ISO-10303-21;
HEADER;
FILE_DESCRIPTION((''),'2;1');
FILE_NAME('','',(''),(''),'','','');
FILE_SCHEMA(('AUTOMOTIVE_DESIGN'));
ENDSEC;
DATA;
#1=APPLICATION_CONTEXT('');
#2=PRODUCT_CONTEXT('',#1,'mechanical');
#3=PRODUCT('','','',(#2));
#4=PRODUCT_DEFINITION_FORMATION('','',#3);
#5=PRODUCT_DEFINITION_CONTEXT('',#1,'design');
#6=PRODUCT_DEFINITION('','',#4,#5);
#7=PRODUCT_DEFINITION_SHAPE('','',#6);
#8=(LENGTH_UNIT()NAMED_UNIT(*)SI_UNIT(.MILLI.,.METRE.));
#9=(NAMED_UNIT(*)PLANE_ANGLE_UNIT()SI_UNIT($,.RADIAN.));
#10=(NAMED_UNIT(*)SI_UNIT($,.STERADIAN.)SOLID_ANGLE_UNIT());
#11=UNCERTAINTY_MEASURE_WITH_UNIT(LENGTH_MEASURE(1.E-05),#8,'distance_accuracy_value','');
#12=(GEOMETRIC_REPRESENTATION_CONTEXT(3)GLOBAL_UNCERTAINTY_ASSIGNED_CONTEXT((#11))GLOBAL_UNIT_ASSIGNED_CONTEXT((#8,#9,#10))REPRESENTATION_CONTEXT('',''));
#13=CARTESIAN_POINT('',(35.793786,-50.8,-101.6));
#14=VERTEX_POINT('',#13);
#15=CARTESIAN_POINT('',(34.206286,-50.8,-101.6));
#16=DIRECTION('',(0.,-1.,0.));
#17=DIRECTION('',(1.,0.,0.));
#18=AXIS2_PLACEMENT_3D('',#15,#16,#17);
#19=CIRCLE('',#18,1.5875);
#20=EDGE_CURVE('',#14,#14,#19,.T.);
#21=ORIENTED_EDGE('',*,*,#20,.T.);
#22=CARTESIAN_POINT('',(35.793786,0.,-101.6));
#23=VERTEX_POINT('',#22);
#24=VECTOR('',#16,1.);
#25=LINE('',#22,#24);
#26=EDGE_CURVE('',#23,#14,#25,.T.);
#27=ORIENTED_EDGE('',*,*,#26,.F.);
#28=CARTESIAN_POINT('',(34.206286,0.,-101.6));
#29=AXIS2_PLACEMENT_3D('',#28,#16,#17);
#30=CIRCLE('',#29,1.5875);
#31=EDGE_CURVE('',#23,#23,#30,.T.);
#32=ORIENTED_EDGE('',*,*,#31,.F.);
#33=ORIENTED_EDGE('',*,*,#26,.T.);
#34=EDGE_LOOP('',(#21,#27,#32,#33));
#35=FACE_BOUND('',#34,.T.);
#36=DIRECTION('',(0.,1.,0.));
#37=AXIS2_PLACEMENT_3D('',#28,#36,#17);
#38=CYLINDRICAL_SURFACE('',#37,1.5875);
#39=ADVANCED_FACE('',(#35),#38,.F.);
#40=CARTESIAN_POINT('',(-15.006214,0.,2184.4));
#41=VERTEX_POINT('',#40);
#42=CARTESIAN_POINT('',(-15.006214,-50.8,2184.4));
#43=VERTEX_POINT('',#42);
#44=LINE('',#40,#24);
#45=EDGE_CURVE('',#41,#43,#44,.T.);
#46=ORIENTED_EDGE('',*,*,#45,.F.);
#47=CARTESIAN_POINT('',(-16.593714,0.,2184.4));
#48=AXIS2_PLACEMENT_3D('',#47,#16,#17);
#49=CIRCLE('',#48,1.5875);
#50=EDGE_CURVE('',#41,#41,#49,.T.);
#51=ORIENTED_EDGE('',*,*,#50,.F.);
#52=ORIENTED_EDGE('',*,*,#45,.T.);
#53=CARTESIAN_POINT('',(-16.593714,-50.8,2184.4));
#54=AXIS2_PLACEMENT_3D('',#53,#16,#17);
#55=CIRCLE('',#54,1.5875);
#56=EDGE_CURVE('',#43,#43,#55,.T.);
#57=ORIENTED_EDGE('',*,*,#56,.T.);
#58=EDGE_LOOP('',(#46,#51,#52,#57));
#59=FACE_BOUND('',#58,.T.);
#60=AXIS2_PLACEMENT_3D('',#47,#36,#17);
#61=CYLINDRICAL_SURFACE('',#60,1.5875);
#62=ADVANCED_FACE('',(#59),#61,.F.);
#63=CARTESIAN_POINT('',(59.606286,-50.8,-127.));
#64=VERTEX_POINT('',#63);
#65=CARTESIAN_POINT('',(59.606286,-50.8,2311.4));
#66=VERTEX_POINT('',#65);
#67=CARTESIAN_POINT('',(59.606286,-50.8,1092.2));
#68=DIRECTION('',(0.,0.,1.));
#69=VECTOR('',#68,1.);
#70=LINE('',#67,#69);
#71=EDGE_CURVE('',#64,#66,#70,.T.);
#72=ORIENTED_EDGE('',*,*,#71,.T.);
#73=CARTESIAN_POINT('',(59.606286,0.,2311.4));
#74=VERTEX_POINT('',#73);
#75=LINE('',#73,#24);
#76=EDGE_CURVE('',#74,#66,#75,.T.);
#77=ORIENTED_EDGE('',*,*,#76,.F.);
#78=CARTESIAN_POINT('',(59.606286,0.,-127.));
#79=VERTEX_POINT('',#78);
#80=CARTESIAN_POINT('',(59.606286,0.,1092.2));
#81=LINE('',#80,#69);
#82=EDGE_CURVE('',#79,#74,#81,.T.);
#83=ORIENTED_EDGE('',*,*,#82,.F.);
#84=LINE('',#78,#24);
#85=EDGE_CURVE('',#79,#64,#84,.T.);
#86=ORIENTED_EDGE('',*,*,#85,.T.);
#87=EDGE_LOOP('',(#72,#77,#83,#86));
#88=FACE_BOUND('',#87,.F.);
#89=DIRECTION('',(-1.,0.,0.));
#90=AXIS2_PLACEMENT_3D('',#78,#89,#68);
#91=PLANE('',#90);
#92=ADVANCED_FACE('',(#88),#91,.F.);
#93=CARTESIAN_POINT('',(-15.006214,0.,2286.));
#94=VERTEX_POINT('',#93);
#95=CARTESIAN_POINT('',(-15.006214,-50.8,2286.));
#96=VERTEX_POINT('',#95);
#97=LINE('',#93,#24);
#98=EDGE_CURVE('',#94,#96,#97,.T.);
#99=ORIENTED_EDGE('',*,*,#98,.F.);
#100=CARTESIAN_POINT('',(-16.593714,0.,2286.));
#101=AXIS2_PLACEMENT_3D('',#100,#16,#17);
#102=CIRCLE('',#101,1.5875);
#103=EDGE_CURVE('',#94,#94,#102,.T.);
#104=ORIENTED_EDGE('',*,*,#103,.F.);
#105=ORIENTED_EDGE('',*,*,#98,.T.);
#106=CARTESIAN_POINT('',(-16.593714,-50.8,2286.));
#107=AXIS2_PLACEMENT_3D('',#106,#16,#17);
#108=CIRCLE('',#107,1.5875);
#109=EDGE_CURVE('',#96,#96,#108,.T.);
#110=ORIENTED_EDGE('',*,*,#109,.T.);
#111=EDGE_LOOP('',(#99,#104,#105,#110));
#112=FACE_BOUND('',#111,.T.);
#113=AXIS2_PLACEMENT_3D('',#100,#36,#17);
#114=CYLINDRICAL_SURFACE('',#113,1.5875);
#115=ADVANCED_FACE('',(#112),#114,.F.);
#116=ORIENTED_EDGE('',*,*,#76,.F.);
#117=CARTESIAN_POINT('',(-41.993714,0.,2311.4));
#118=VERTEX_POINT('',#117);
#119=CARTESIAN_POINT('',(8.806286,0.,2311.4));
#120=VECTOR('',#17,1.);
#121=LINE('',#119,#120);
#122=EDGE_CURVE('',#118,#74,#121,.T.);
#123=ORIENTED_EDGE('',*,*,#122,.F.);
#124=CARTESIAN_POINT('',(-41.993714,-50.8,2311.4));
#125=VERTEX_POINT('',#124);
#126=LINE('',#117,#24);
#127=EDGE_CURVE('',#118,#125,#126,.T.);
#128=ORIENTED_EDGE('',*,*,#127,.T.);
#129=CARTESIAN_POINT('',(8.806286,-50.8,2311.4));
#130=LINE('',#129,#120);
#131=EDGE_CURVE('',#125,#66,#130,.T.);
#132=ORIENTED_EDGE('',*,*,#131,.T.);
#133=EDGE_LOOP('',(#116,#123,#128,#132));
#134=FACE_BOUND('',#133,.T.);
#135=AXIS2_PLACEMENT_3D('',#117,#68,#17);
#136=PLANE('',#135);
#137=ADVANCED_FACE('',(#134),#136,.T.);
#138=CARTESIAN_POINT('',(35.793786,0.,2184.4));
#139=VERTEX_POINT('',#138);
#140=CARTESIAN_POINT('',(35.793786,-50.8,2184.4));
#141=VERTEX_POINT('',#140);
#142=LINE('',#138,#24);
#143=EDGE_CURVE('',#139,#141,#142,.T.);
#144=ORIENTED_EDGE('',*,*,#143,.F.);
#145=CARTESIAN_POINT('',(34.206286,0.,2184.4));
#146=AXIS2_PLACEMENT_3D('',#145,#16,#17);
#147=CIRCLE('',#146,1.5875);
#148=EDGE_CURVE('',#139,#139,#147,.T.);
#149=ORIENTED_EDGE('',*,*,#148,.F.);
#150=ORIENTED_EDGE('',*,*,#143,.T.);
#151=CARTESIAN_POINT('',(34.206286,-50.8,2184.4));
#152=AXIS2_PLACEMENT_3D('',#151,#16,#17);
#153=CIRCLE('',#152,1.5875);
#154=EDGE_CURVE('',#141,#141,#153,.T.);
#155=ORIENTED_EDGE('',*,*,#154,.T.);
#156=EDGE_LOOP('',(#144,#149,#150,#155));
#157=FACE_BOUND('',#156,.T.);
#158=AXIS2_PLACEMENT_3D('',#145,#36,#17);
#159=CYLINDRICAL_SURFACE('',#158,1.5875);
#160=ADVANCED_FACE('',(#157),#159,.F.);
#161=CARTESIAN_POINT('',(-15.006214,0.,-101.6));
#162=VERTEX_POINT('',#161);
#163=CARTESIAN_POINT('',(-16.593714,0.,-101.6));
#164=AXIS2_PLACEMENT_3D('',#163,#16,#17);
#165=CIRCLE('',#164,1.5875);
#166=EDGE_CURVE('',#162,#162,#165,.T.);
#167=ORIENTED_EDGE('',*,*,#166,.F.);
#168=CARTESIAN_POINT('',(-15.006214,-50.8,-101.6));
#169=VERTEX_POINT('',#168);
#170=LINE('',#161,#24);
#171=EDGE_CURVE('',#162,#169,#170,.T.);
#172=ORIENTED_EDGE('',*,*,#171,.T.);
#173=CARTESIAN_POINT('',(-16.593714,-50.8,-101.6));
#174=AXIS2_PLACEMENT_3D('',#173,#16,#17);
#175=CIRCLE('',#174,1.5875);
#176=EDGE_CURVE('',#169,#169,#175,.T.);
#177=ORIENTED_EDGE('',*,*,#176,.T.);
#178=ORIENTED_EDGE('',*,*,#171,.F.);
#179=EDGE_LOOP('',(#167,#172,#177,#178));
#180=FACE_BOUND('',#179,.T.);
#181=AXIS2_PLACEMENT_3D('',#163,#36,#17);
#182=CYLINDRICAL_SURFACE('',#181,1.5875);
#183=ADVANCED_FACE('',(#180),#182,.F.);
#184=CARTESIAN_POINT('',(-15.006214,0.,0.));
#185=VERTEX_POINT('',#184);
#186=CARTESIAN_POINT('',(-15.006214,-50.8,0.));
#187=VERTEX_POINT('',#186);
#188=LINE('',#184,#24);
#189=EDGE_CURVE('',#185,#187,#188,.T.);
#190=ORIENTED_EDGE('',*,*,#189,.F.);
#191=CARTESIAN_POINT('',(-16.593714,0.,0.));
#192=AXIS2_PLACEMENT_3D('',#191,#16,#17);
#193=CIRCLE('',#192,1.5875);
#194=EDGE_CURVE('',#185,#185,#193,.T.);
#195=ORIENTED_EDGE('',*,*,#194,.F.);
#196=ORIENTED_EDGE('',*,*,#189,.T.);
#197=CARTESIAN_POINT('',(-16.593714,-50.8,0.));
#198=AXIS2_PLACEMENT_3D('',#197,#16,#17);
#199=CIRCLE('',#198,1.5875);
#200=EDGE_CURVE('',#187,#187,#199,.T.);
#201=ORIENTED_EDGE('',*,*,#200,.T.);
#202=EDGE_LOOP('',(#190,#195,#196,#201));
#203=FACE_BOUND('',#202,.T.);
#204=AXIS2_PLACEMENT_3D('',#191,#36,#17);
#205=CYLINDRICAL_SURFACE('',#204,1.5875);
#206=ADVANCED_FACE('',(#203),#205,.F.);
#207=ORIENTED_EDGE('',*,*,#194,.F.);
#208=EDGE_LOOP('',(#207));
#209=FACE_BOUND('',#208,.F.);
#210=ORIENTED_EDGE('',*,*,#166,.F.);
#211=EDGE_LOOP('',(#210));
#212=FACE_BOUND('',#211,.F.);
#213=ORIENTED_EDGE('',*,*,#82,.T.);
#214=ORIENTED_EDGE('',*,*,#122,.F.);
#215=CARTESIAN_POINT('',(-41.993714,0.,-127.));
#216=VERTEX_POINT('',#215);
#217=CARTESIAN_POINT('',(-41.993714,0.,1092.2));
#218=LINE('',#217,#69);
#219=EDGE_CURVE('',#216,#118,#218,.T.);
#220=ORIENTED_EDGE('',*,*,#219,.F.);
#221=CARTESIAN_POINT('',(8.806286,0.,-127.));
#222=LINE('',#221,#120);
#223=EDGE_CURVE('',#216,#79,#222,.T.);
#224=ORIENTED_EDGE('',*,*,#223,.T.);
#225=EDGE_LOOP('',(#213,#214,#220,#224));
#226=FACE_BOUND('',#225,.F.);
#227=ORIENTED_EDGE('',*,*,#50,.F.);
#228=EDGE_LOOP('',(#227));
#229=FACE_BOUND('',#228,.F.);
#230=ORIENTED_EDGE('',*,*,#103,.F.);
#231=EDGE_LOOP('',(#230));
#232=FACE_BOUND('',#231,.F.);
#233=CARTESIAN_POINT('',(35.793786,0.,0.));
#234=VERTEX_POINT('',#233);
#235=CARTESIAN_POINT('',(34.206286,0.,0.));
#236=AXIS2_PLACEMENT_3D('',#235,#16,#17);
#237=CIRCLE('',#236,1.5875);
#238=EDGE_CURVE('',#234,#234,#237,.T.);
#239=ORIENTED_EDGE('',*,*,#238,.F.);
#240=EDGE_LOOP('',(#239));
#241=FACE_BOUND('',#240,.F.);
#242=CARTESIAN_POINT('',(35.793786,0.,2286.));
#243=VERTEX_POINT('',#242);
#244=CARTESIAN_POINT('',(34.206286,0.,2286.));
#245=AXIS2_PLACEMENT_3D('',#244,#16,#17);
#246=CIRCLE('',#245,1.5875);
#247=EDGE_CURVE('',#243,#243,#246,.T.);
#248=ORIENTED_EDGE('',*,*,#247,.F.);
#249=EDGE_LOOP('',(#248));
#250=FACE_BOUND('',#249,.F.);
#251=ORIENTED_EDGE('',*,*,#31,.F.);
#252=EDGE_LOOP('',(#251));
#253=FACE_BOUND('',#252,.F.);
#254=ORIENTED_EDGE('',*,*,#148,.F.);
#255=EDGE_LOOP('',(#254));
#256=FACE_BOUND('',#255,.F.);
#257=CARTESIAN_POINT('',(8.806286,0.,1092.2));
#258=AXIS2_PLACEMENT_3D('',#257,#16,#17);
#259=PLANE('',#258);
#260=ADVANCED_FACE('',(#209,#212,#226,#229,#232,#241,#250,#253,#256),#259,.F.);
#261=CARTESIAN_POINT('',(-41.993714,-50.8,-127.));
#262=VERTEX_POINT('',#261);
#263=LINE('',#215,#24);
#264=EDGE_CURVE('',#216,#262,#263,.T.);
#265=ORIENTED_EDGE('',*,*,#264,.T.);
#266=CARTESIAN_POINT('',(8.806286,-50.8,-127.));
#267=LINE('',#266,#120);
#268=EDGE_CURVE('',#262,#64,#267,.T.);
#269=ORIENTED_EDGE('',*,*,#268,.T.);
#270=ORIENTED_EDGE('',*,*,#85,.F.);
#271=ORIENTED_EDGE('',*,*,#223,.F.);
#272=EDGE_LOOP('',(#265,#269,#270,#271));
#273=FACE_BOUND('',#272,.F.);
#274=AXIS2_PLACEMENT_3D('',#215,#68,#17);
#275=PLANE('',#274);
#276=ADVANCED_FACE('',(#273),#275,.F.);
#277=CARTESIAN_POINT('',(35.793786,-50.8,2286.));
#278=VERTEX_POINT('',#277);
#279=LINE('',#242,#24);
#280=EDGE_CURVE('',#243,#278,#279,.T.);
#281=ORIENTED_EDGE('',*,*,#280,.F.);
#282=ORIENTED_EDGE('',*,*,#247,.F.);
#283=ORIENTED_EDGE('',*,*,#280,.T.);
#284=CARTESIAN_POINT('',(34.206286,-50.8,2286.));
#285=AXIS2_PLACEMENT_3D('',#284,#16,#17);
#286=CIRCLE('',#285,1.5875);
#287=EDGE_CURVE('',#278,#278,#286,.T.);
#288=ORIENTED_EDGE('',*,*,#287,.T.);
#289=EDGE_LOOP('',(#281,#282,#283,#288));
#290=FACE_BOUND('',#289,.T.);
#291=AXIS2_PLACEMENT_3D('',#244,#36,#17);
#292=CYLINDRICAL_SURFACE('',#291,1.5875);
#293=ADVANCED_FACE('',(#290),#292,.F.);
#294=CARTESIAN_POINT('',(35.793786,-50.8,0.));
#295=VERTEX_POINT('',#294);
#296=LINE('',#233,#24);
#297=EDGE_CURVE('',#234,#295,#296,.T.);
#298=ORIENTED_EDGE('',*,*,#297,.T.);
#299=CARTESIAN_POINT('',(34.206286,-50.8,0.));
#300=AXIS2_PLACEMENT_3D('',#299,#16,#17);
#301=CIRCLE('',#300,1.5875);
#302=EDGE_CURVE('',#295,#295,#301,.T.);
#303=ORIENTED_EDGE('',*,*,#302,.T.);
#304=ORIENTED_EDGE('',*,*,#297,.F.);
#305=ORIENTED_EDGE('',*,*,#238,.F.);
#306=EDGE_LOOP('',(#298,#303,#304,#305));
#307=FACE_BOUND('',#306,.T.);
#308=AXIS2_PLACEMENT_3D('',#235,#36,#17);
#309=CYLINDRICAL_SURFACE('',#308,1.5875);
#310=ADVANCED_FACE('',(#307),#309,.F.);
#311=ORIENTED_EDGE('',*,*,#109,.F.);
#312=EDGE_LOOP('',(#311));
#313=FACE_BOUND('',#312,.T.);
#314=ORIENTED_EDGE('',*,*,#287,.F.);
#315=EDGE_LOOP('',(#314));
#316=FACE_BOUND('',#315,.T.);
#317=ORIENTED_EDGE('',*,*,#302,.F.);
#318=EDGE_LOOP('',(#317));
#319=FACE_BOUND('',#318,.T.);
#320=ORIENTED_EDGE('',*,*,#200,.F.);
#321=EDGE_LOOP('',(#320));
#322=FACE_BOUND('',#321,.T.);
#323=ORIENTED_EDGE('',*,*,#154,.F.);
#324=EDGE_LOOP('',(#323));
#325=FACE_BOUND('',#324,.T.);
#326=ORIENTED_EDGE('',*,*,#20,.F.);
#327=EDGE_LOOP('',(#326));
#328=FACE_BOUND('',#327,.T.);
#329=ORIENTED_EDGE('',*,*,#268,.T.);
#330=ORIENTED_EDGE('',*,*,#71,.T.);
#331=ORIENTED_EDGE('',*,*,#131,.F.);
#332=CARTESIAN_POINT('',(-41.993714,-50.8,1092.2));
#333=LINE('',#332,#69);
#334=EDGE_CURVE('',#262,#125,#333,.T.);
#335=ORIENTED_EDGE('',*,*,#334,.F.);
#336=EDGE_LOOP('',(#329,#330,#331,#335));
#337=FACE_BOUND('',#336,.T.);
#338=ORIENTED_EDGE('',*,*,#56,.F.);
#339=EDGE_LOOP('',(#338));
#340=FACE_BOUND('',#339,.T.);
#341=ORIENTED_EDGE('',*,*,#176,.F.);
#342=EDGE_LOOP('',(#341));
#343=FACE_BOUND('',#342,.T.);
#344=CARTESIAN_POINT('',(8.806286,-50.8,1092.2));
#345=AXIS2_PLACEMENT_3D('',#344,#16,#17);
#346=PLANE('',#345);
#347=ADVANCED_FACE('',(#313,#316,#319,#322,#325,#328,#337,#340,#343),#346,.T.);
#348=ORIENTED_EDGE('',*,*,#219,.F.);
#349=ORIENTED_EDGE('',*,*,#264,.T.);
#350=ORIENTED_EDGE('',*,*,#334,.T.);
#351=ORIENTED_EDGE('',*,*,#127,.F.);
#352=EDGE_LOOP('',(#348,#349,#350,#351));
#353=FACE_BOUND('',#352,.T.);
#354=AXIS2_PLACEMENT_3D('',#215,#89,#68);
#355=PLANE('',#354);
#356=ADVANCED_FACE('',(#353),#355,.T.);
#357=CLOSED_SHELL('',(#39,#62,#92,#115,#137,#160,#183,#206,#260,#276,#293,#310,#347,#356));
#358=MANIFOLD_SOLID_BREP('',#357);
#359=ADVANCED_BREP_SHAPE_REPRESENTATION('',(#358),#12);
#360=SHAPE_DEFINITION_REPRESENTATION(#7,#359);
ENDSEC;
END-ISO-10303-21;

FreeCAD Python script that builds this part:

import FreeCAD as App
import Part
import Sketcher

V = App.Vector
Q = App.Units.Quantity

doc = App.newDocument("Part")
body = doc.addObject("PartDesign::Body", "Body")

sketch1 = doc.addObject("Sketcher::SketchObject", "Sketch")
body.addObject(sketch1)
sketch1.AttachmentSupport = (doc.XZ_Plane, [""])
sketch1.MapMode = "FlatFace"
sketch1.addGeometry([
    Part.LineSegment(V(-41.993714, 2311.4, 0), V(-41.993714, -127, 0)),
    Part.LineSegment(V(-41.993714, -127, 0), V(59.606286, -127, 0)),
    Part.LineSegment(V(59.606286, -127, 0), V(59.606286, 2311.4, 0)),
    Part.LineSegment(V(59.606286, 2311.4, 0), V(-41.993714, 2311.4, 0)),
    Part.Circle(V(-16.593714, -101.6, 0), V(0, 0, 1), 1.5875),
    Part.Circle(V(-16.593714, 0, 0), V(0, 0, 1), 1.5875),
    Part.Circle(V(34.206286, -101.6, 0), V(0, 0, 1), 1.5875),
    Part.Circle(V(34.206286, 0, 0), V(0, 0, 1), 1.5875),
    Part.Circle(V(-16.593714, 2184.4, 0), V(0, 0, 1), 1.5875),
    Part.Circle(V(-16.593714, 2286, 0), V(0, 0, 1), 1.5875),
    Part.Circle(V(34.206286, 2184.4, 0), V(0, 0, 1), 1.5875),
    Part.Circle(V(34.206286, 2286, 0), V(0, 0, 1), 1.5875),
], False)
sketch1.addConstraint([
    Sketcher.Constraint("Coincident", 0, 2, 1, 1),
    Sketcher.Constraint("Coincident", 1, 2, 2, 1),
    Sketcher.Constraint("Coincident", 2, 2, 3, 1),
    Sketcher.Constraint("Coincident", 3, 2, 0, 1),
    Sketcher.Constraint("Vertical", 0),
    Sketcher.Constraint("Horizontal", 1),
    Sketcher.Constraint("Vertical", 2),
    Sketcher.Constraint("Horizontal", 3),
    Sketcher.Constraint("Equal", 4, 5),
    Sketcher.Constraint("Equal", 5, 6),
    Sketcher.Constraint("Equal", 6, 7),
    Sketcher.Constraint("Equal", 7, 8),
    Sketcher.Constraint("Equal", 8, 9),
    Sketcher.Constraint("Equal", 9, 10),
    Sketcher.Constraint("Equal", 10, 11),
    Sketcher.Constraint("PointOnObject", 5, 3, -1),
    Sketcher.Constraint("PointOnObject", 7, 3, -1),
    Sketcher.Constraint("Horizontal", 4, 3, 6, 3),
    Sketcher.Constraint("Horizontal", 8, 3, 10, 3),
    Sketcher.Constraint("Horizontal", 9, 3, 11, 3),
    Sketcher.Constraint("Vertical", 4, 3, 5, 3),
    Sketcher.Constraint("Vertical", 6, 3, 7, 3),
    Sketcher.Constraint("Vertical", 5, 3, 8, 3),
    Sketcher.Constraint("Vertical", 8, 3, 9, 3),
    Sketcher.Constraint("Vertical", 7, 3, 10, 3),
    Sketcher.Constraint("Vertical", 10, 3, 11, 3),
    Sketcher.Constraint("DistanceX", 1, 1, 1, 2, Q("4 in")),
    Sketcher.Constraint("DistanceY", 0, 2, 0, 1, Q("96 in")),
    Sketcher.Constraint("Diameter", 4, Q("0.125 in")),
    Sketcher.Constraint("DistanceY", 4, 3, -1, 1, Q("4 in")),
    Sketcher.Constraint("DistanceY", -1, 1, 8, 3, Q("86 in")),
    Sketcher.Constraint("DistanceY", -1, 1, 9, 3, Q("90 in")),
    Sketcher.Constraint("DistanceY", 0, 2, -1, 1, Q("5 in")),
    Sketcher.Constraint("DistanceX", 4, 3, 6, 3, Q("2 in")),
    Sketcher.Constraint("DistanceX", 0, 2, 4, 3, Q("1 in")),
    Sketcher.Constraint("DistanceX", 4, 3, -1, 1, 16.593714),
])
pad1 = doc.addObject("PartDesign::Pad", "Pad")
body.addObject(pad1)
pad1.Profile = sketch1
pad1.Length = Q("2 in")

doc.recompute()
